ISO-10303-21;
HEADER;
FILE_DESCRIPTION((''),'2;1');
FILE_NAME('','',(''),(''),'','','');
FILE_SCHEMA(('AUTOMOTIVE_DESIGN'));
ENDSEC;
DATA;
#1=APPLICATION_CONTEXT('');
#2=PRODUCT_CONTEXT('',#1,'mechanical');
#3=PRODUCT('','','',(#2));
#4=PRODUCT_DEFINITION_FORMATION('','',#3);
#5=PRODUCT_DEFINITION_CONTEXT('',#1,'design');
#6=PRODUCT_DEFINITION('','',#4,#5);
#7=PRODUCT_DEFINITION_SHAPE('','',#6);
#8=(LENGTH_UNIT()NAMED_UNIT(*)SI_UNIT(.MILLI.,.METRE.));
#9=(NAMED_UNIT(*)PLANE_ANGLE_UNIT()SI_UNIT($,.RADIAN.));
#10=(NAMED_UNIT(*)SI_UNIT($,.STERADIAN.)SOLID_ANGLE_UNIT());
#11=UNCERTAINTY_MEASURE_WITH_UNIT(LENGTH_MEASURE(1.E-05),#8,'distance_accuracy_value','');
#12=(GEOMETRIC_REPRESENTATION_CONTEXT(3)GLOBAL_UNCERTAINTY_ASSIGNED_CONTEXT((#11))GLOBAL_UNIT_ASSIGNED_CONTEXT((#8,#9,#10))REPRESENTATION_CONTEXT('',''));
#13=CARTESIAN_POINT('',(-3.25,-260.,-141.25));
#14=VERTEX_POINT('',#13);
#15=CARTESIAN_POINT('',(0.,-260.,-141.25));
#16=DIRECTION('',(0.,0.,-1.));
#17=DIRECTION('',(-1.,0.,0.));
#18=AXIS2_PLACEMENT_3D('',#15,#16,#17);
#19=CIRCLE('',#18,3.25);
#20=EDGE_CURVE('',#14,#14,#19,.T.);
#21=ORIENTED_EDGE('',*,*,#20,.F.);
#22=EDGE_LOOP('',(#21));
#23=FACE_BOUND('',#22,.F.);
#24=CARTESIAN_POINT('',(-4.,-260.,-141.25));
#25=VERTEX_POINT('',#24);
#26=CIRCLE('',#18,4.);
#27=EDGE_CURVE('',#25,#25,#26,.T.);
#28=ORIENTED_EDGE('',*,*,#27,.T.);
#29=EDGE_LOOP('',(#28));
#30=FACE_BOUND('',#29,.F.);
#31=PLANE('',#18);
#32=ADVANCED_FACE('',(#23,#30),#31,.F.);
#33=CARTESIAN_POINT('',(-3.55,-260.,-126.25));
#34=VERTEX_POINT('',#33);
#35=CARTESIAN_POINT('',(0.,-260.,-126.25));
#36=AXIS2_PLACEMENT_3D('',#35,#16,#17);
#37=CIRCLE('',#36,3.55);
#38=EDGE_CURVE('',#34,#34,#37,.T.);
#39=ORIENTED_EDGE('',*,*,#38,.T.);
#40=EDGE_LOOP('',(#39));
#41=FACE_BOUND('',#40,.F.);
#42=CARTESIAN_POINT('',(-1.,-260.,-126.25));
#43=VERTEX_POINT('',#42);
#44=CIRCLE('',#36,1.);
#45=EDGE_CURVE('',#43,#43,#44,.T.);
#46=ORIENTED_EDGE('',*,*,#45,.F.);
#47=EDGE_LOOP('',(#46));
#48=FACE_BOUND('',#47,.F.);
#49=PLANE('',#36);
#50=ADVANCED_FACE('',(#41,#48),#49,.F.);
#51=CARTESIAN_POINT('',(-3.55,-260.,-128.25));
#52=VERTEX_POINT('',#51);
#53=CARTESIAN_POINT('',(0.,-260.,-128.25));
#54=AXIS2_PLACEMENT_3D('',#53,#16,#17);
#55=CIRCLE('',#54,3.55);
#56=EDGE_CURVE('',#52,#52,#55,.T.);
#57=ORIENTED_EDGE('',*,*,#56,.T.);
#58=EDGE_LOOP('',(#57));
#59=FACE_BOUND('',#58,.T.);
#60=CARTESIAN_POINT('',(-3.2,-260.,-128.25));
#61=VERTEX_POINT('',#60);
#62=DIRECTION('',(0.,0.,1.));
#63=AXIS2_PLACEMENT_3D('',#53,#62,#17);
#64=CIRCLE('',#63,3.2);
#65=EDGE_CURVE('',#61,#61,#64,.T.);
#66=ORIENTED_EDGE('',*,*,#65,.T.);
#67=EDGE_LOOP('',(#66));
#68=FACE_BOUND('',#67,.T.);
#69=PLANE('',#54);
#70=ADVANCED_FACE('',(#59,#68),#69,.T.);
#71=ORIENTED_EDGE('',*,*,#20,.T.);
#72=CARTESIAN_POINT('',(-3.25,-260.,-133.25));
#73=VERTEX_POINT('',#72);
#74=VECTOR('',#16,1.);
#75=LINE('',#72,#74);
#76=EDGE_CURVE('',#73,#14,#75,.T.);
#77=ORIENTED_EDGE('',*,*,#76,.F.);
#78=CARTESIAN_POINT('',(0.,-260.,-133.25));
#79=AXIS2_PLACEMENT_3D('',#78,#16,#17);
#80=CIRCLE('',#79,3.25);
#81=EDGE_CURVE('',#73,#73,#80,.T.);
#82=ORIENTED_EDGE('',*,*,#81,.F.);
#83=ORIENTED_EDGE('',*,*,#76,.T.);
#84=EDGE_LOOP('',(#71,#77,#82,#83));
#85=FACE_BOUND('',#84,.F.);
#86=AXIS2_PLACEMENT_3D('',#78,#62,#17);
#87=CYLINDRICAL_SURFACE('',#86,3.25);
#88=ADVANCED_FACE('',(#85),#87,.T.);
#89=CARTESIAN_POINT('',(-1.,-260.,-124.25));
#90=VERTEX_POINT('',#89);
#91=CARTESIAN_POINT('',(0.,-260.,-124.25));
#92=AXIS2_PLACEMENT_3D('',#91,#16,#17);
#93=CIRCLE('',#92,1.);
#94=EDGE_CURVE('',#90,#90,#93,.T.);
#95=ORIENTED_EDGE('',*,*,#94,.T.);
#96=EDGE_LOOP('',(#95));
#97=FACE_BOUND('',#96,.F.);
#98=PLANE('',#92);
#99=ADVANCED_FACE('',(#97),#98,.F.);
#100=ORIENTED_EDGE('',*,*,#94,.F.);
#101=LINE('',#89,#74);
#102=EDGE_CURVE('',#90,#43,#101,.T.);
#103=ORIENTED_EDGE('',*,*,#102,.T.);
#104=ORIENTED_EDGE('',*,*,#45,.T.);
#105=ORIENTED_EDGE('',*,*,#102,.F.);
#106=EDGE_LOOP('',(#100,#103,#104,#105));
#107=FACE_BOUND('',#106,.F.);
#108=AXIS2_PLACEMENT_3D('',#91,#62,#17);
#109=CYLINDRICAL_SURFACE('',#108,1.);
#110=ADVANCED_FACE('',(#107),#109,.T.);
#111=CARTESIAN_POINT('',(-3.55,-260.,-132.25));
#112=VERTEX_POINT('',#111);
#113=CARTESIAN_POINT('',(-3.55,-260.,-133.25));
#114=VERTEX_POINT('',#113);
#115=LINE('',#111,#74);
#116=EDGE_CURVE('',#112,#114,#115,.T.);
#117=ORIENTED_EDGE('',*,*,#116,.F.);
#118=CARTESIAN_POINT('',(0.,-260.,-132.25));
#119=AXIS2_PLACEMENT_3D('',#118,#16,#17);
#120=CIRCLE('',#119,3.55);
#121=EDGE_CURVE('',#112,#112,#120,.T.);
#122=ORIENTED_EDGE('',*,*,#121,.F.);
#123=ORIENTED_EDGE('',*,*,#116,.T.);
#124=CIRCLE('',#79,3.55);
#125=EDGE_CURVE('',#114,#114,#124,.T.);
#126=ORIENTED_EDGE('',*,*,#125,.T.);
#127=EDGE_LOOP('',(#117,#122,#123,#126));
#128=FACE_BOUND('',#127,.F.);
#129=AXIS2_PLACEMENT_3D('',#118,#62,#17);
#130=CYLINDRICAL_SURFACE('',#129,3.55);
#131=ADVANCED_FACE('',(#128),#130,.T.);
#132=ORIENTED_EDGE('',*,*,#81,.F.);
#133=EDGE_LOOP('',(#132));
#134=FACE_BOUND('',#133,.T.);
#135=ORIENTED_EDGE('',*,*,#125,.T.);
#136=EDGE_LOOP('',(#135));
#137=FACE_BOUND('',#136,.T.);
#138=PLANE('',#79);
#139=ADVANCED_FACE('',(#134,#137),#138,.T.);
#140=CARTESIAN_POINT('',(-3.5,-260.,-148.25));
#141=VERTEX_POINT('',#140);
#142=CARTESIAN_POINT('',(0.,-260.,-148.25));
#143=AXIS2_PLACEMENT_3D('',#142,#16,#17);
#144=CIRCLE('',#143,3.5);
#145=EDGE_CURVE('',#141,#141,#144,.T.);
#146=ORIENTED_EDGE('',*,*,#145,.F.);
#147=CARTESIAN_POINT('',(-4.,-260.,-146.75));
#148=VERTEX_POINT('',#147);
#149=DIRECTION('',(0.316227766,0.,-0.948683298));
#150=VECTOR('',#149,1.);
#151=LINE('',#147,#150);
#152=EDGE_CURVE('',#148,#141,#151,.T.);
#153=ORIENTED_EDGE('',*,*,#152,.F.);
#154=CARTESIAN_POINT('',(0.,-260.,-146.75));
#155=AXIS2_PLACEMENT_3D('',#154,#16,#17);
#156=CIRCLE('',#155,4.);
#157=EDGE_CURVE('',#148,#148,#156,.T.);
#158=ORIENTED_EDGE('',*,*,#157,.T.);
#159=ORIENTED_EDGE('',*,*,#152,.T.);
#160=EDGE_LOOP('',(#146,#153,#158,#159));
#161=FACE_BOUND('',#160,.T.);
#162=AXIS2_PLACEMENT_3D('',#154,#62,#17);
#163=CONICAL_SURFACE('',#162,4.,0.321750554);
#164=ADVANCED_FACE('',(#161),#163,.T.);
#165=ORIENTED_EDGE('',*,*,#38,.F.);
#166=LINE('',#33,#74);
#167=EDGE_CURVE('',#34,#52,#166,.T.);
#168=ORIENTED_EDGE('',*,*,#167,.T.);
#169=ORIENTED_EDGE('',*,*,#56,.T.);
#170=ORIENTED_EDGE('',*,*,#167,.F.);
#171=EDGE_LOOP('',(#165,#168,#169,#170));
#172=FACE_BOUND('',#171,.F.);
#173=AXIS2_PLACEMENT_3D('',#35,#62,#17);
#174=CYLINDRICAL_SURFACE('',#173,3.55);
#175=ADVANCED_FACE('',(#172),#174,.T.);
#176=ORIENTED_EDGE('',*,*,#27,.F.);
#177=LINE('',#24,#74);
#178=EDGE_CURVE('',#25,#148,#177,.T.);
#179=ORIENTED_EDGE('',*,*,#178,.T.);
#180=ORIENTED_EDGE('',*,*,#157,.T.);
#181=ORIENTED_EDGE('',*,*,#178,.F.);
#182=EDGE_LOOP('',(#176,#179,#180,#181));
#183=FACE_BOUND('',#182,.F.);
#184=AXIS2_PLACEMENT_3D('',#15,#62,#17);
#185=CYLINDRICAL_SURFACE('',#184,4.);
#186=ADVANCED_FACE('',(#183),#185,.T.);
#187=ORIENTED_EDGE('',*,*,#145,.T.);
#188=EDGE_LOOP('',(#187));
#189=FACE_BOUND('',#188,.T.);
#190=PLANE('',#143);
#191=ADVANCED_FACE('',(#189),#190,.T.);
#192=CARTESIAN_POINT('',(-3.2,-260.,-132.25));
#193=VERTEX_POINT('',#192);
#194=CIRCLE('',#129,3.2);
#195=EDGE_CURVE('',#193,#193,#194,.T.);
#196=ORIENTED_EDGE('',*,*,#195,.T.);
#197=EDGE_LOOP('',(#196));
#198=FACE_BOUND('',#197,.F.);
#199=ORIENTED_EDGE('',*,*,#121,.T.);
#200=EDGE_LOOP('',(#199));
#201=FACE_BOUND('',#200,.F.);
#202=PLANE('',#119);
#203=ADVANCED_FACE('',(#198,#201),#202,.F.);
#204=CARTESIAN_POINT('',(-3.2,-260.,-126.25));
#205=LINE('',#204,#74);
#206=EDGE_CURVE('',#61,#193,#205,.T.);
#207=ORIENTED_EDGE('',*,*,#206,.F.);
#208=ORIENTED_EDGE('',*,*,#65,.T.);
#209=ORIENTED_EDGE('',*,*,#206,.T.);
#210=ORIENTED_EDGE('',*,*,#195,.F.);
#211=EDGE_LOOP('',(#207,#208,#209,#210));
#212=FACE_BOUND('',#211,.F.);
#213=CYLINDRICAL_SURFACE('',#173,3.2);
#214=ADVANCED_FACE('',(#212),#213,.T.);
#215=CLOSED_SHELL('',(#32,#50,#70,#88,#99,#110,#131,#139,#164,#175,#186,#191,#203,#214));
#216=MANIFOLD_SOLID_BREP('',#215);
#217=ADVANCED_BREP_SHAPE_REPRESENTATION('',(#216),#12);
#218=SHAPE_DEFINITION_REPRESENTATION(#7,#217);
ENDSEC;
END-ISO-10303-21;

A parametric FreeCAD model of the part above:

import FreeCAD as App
import Part
import Sketcher
from FreeCAD import Vector
Q = App.Units.Quantity

doc = App.newDocument("Part")
params = doc.addObject("Spreadsheet::Sheet", "Params")
for row, (alias, value) in enumerate([
    ("sketch1_diameter", "6.4 mm"),
    ("pad1_length", "22 mm"),
    ("sketch2_diameter", "7.1 mm"),
    ("pad2_length", "2 mm"),
    ("sketch3_diameter", "7.1 mm"),
    ("pad3_length", "1 mm"),
    ("sketch4_diameter", "6.5 mm"),
    ("pad4_length", "8 mm"),
    ("sketch5_diameter", "8 mm"),
    ("pad5_length", "5.5 mm"),
    ("sketch6_width", "4 mm"),
    ("sketch6_width2", "3.5 mm"),
    ("sketch6_height", "1.5 mm"),
    ("revolution_angle", "360 deg"),
    ("sketch7_diameter", "2 mm"),
    ("pad6_length", "2 mm"),
], start=1):
    params.set(f"A{row}", alias)
    params.set(f"B{row}", "=" + value)
    params.setAlias(f"B{row}", alias)

body = doc.addObject("PartDesign::Body", "Body")

# Sketch on XY plane
sketch1 = body.newObject("Sketcher::SketchObject", "Sketch")
sketch1.AttachmentSupport = (doc.getObject("XY_Plane"), [""])
sketch1.MapMode = "FlatFace"
sketch1.AttachmentOffset = App.Placement(Vector(0, 0, 5), App.Rotation())
sketch1.addGeometry(Part.Circle(Vector(0, 0, 0), Vector(0, 0, 1), 3.2), False)
sketch1.addConstraint([
    Sketcher.Constraint("Coincident", 0, 3, -1, 1),
    Sketcher.Constraint("Diameter", 0, Q("6.4 mm")),
])
sketch1.setExpression("Constraints[1]", "Params.sketch1_diameter")
pad1 = body.newObject("PartDesign::Pad", "Pad")
pad1.Profile = sketch1
pad1.setExpression("Length", "Params.pad1_length")
body2 = doc.addObject("PartDesign::Body", "Body001")

# Sketch on XY plane
sketch2 = body2.newObject("Sketcher::SketchObject", "Sketch001")
sketch2.AttachmentSupport = (doc.getObject("XY_Plane001"), [""])
sketch2.MapMode = "FlatFace"
sketch2.AttachmentOffset = App.Placement(Vector(0, 0, 5), App.Rotation())
sketch2.addGeometry(Part.Circle(Vector(0, 0, 0), Vector(0, 0, 1), 3.5), False)
sketch2.addConstraint([
    Sketcher.Constraint("Coincident", 0, 3, -1, 1),
    Sketcher.Constraint("Diameter", 0, Q("7.1 mm")),
])
sketch2.setExpression("Constraints[1]", "Params.sketch2_diameter")
pad2 = body2.newObject("PartDesign::Pad", "Pad001")
pad2.Profile = sketch2
pad2.setExpression("Length", "Params.pad2_length")
body3 = doc.addObject("PartDesign::Body", "Body002")

# Sketch on XY plane
sketch3 = body3.newObject("Sketcher::SketchObject", "Sketch002")
sketch3.AttachmentSupport = (doc.getObject("XY_Plane002"), [""])
sketch3.MapMode = "FlatFace"
sketch3.AttachmentOffset = App.Placement(Vector(0, 0, 11), App.Rotation())
sketch3.addGeometry(Part.Circle(Vector(0, 0, 0), Vector(0, 0, 1), 3.5), False)
sketch3.addConstraint([
    Sketcher.Constraint("Coincident", 0, 3, -1, 1),
    Sketcher.Constraint("Diameter", 0, Q("7.1 mm")),
])
sketch3.setExpression("Constraints[1]", "Params.sketch3_diameter")
pad3 = body3.newObject("PartDesign::Pad", "Pad002")
pad3.Profile = sketch3
pad3.setExpression("Length", "Params.pad3_length")
body4 = doc.addObject("PartDesign::Body", "Body003")

# Sketch on XY plane
sketch4 = body4.newObject("Sketcher::SketchObject", "Sketch003")
sketch4.AttachmentSupport = (doc.getObject("XY_Plane003"), [""])
sketch4.MapMode = "FlatFace"
sketch4.AttachmentOffset = App.Placement(Vector(0, 0, 12), App.Rotation())
sketch4.addGeometry(Part.Circle(Vector(0, 0, 0), Vector(0, 0, 1), 3.2), False)
sketch4.addConstraint([
    Sketcher.Constraint("Coincident", 0, 3, -1, 1),
    Sketcher.Constraint("Diameter", 0, Q("6.5 mm")),
])
sketch4.setExpression("Constraints[1]", "Params.sketch4_diameter")
pad4 = body4.newObject("PartDesign::Pad", "Pad003")
pad4.Profile = sketch4
pad4.setExpression("Length", "Params.pad4_length")
body5 = doc.addObject("PartDesign::Body", "Body004")

# Sketch on XY plane
sketch5 = body5.newObject("Sketcher::SketchObject", "Sketch004")
sketch5.AttachmentSupport = (doc.getObject("XY_Plane004"), [""])
sketch5.MapMode = "FlatFace"
sketch5.AttachmentOffset = App.Placement(Vector(0, 0, 20), App.Rotation())
sketch5.addGeometry(Part.Circle(Vector(0, 0, 0), Vector(0, 0, 1), 4), False)
sketch5.addConstraint([
    Sketcher.Constraint("Coincident", 0, 3, -1, 1),
    Sketcher.Constraint("Diameter", 0, Q("8 mm")),
])
sketch5.setExpression("Constraints[1]", "Params.sketch5_diameter")
pad5 = body5.newObject("PartDesign::Pad", "Pad004")
pad5.Profile = sketch5
pad5.setExpression("Length", "Params.pad5_length")
body6 = doc.addObject("PartDesign::Body", "Body005")

# Sketch on XZ plane
sketch6 = body6.newObject("Sketcher::SketchObject", "Sketch005")
sketch6.AttachmentSupport = (doc.getObject("XZ_Plane005"), [""])
sketch6.MapMode = "FlatFace"
sketch6.addGeometry([
    Part.LineSegment(Vector(0, 25.5, 0), Vector(4, 25.5, 0)),
    Part.LineSegment(Vector(4, 25.5, 0), Vector(3.5, 27, 0)),
    Part.LineSegment(Vector(3.5, 27, 0), Vector(0, 27, 0)),
    Part.LineSegment(Vector(0, 27, 0), Vector(0, 25.5, 0)),
], False)
sketch6.addConstraint([
    Sketcher.Constraint("Coincident", 0, 2, 1, 1),
    Sketcher.Constraint("Coincident", 1, 2, 2, 1),
    Sketcher.Constraint("Coincident", 2, 2, 3, 1),
    Sketcher.Constraint("Coincident", 3, 2, 0, 1),
    Sketcher.Constraint("Horizontal", 0),
    Sketcher.Constraint("Horizontal", 2),
    Sketcher.Constraint("Vertical", 3),
    Sketcher.Constraint("PointOnObject", 2, 2, -2),
    Sketcher.Constraint("DistanceX", 0, 1, 0, 2, Q("4 mm")),
    Sketcher.Constraint("DistanceX", 2, 2, 2, 1, Q("3.5 mm")),
    Sketcher.Constraint("DistanceY", 3, 2, 3, 1, Q("1.5 mm")),
    Sketcher.Constraint("DistanceY", -1, 1, 1, 2, Q("27 mm")),
])
sketch6.setExpression("Constraints[8]", "Params.sketch6_width")
sketch6.setExpression("Constraints[9]", "Params.sketch6_width2")
sketch6.setExpression("Constraints[10]", "Params.sketch6_height")
revolution = body6.newObject("PartDesign::Revolution", "Revolution")
revolution.Profile = sketch6
revolution.ReferenceAxis = (sketch6, ["V_Axis"])
revolution.setExpression("Angle", "Params.revolution_angle")
doc.recompute()

boolean = body6.newObject("PartDesign::Boolean", "Boolean")
boolean.Type = "Fuse"
boolean.addObjects([body])
doc.recompute()

boolean2 = body6.newObject("PartDesign::Boolean", "Boolean001")
boolean2.Type = "Fuse"
boolean2.addObjects([body2])
doc.recompute()

boolean3 = body6.newObject("PartDesign::Boolean", "Boolean002")
boolean3.Type = "Fuse"
boolean3.addObjects([body3])
doc.recompute()

boolean4 = body6.newObject("PartDesign::Boolean", "Boolean003")
boolean4.Type = "Fuse"
boolean4.addObjects([body4])
doc.recompute()

boolean5 = body6.newObject("PartDesign::Boolean", "Boolean004")
boolean5.Type = "Fuse"
boolean5.addObjects([body5])
body7 = doc.addObject("PartDesign::Body", "Body006")

# Sketch on XY plane
sketch7 = body7.newObject("Sketcher::SketchObject", "Sketch006")
sketch7.AttachmentSupport = (doc.getObject("XY_Plane006"), [""])
sketch7.MapMode = "FlatFace"
sketch7.AttachmentOffset = App.Placement(Vector(0, 0, 3), App.Rotation())
sketch7.addGeometry(Part.Circle(Vector(0, 0, 0), Vector(0, 0, 1), 1), False)
sketch7.addConstraint([
    Sketcher.Constraint("Coincident", 0, 3, -1, 1),
    Sketcher.Constraint("Diameter", 0, Q("2 mm")),
])
sketch7.setExpression("Constraints[1]", "Params.sketch7_diameter")
pad6 = body7.newObject("PartDesign::Pad", "Pad005")
pad6.Profile = sketch7
pad6.setExpression("Length", "Params.pad6_length")
doc.recompute()

boolean6 = body7.newObject("PartDesign::Boolean", "Boolean005")
boolean6.Type = "Fuse"
boolean6.addObjects([body6])
body8 = doc.addObject("PartDesign::Body", "Body007")
doc.recompute()

body7.Placement = App.Placement(Vector(0, -260, -121.25), App.Rotation(Vector(0, 1, 0), 180))
boolean7 = body8.newObject("PartDesign::Boolean", "Boolean006")
boolean7.Type = "Fuse"
boolean7.addObjects([body7])

doc.recompute()
